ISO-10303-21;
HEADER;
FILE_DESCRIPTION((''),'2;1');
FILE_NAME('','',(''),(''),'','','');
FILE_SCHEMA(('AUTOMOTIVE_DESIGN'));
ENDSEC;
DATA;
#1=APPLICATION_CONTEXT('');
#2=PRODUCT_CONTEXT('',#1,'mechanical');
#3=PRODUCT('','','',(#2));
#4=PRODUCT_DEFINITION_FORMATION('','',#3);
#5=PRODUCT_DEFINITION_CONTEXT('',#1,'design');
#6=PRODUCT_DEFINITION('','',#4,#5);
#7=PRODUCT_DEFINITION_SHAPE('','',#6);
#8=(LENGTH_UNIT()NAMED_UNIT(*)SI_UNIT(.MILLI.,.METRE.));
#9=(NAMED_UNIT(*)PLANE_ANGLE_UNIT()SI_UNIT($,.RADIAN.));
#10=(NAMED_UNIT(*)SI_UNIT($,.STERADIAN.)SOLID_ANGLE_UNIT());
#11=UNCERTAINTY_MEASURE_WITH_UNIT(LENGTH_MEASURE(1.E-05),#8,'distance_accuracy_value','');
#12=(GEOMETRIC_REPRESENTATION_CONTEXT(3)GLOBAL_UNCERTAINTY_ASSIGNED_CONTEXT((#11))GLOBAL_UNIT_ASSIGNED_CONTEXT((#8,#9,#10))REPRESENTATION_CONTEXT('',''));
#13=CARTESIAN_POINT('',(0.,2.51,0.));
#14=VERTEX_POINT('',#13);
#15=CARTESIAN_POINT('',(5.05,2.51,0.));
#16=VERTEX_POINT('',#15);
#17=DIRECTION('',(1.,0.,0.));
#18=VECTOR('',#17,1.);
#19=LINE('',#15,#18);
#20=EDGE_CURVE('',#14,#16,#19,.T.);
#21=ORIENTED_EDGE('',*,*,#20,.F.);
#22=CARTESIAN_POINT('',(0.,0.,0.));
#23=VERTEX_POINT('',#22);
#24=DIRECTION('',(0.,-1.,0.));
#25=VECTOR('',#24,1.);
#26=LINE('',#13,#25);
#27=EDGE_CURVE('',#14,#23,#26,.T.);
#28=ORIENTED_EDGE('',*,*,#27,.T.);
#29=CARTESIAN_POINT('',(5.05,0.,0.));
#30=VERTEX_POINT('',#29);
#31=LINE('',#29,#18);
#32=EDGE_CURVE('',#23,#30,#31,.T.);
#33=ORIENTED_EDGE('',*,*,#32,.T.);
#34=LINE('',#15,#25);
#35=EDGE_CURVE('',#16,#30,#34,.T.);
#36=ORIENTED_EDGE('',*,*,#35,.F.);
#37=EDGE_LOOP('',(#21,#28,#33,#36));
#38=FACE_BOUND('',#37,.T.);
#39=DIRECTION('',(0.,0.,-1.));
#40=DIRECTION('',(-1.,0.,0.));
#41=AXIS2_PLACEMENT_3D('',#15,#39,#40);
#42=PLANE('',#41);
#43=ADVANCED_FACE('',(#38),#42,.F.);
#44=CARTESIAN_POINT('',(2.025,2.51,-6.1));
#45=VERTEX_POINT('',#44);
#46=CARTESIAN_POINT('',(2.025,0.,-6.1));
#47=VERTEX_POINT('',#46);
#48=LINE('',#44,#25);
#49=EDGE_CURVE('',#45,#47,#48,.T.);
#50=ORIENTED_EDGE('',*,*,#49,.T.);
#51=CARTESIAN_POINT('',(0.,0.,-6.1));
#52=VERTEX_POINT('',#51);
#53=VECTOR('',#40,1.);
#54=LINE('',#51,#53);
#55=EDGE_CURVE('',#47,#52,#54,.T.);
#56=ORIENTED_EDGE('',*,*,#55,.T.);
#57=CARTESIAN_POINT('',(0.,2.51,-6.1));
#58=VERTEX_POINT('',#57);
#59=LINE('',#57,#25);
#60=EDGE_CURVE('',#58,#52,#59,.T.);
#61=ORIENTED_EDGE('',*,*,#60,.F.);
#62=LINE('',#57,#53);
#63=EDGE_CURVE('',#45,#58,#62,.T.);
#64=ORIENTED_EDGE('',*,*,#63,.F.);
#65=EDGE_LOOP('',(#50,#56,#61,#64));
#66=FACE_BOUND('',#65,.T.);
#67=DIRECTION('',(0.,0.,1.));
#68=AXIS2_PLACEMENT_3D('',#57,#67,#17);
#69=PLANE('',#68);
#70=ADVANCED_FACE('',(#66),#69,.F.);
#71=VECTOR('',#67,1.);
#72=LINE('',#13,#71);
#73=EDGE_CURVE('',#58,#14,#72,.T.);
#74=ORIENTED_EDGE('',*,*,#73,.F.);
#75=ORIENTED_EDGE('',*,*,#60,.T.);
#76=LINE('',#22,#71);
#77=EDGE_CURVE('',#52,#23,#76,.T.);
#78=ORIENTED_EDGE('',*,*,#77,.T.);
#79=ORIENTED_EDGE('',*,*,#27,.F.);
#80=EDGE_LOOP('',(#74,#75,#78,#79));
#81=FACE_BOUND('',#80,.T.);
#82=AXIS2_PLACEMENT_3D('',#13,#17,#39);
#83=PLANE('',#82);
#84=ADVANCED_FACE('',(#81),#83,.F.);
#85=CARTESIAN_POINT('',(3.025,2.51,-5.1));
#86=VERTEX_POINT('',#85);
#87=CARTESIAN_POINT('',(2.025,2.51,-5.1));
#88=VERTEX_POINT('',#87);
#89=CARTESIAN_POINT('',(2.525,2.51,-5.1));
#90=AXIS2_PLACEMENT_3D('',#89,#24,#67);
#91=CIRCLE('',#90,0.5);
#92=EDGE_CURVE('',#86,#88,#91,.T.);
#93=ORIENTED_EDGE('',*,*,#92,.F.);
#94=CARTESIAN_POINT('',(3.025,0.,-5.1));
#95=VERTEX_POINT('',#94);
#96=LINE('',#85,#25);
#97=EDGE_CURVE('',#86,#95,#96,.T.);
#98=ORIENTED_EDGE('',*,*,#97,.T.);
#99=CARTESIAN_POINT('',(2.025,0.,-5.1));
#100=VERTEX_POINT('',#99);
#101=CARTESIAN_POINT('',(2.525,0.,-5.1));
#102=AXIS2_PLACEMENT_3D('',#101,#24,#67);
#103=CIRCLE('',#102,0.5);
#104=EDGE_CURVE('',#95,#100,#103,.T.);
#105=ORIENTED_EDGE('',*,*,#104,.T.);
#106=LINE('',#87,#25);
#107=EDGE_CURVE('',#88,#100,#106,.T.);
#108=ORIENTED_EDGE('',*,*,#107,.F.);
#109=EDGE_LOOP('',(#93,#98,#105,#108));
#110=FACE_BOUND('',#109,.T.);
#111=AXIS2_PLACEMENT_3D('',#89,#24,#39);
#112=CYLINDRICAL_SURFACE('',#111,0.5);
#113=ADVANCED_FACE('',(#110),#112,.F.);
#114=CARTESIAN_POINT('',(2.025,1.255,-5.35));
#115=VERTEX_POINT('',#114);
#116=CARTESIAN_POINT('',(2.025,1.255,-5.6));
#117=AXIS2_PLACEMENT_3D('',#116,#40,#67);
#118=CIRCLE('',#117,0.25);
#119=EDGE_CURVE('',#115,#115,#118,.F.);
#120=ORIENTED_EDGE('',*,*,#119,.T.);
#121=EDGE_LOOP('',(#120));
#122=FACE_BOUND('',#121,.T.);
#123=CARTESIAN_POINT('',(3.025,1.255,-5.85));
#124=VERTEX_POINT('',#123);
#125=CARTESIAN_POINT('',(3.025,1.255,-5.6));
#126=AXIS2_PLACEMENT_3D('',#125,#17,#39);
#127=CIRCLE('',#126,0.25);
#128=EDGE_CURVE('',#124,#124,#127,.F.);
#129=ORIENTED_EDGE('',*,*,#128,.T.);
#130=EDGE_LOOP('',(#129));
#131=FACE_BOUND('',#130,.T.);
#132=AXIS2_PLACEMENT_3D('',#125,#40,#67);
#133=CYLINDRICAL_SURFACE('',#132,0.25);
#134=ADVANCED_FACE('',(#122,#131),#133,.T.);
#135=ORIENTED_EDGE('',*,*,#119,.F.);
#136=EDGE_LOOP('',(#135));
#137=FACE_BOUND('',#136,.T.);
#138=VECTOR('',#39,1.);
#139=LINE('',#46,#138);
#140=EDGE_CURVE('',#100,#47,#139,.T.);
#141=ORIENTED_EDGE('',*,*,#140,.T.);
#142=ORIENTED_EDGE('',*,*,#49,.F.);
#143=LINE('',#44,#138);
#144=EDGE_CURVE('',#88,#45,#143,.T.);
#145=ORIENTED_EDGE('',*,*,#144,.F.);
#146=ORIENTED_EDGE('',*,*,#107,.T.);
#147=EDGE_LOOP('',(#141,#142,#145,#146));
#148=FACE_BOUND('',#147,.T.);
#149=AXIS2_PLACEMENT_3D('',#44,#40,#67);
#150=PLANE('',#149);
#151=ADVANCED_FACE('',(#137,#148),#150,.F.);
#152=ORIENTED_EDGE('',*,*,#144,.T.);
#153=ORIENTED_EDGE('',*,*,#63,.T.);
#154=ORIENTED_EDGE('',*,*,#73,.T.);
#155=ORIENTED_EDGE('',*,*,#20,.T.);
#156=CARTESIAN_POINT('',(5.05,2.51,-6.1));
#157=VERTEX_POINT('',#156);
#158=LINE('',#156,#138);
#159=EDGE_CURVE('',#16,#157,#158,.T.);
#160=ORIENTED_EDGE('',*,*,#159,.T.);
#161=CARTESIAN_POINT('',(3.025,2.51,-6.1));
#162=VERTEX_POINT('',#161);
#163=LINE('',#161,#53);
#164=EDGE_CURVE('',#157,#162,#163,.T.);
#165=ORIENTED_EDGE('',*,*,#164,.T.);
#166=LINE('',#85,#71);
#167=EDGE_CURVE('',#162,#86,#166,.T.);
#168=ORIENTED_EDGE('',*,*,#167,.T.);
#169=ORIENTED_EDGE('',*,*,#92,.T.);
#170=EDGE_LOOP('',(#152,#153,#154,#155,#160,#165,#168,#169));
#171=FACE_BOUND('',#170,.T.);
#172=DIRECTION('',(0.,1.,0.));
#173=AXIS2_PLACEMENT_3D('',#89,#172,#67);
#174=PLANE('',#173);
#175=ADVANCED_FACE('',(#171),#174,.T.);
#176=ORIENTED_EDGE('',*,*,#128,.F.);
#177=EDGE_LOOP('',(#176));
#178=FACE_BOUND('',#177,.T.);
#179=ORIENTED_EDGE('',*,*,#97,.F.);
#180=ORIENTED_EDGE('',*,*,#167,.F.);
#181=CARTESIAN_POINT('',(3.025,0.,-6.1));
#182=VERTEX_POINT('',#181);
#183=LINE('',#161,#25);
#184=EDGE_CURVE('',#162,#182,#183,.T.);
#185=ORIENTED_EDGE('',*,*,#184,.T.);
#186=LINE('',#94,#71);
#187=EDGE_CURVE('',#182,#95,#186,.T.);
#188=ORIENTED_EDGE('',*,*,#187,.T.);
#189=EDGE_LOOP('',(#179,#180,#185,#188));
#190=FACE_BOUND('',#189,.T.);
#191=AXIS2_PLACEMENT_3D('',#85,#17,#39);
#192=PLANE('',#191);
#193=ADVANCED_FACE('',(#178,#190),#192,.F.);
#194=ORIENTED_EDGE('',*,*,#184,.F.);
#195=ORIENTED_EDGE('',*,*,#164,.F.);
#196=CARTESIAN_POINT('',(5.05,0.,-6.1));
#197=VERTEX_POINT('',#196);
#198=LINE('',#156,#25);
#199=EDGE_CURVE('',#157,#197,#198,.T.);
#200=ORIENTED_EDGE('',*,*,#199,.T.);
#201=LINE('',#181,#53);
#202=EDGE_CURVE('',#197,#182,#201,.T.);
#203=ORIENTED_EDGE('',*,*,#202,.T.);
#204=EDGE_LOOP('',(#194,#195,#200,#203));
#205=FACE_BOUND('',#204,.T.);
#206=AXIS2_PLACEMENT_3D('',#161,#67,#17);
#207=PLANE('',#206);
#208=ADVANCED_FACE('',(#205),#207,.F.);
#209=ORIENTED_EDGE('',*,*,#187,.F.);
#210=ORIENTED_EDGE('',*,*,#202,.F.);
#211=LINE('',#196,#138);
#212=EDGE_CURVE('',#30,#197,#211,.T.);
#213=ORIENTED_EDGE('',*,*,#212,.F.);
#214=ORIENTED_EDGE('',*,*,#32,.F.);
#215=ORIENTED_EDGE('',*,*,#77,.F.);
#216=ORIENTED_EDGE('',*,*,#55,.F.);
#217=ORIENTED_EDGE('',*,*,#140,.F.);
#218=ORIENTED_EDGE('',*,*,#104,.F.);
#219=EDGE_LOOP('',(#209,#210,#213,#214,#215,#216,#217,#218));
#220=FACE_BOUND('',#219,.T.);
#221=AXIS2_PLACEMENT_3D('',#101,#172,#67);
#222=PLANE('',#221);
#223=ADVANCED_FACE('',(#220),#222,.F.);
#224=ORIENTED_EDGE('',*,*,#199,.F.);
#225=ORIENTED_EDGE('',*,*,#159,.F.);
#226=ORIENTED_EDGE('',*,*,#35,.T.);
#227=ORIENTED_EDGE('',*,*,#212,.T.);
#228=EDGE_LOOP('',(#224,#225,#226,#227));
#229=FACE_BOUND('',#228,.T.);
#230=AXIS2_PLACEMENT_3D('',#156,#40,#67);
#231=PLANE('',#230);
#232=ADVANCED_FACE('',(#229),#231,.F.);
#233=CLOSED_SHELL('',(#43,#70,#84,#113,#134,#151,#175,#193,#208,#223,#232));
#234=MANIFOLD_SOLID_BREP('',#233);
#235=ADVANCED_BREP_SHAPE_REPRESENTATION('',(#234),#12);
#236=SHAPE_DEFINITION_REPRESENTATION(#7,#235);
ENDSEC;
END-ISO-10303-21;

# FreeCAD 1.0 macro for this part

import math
import FreeCAD as App
import Part
import Sketcher

V = App.Vector

doc = App.newDocument("Part")
params = doc.addObject("Spreadsheet::Sheet", "Params")
for row, (alias, value) in enumerate([
    ("sketch1_radius", "0.5 mm"),
    ("sketch1_height", "1 mm"),
    ("sketch1_height2", "6.1 mm"),
    ("sketch1_width", "5.05 mm"),
    ("pad1_length", "2.51 mm"),
    ("sketch2_diameter", "0.5 mm"),
    ("pad2_length", "1 mm"),
], start=1):
    params.set(f"A{row}", alias)
    params.set(f"B{row}", "=" + value)
    params.setAlias(f"B{row}", alias)

body = doc.addObject("PartDesign::Body", "Body")

# Sketch on XZ plane
sketch1 = doc.addObject("Sketcher::SketchObject", "Sketch")
body.addObject(sketch1)
sketch1.AttachmentSupport = (doc.XZ_Plane, [""])
sketch1.MapMode = "FlatFace"
sketch1.addGeometry([
    Part.LineSegment(V(3, -6.1, 0), V(3, -5.1, 0)),  # 0
    Part.ArcOfCircle(Part.Circle(V(2.5, -5.1, 0), V(0, 0, 1), 0.5), math.radians(0), math.radians(180)),  # 1
    Part.LineSegment(V(2, -5.1, 0), V(2, -6.1, 0)),  # 2
    Part.LineSegment(V(2, -6.1, 0), V(0, -6.1, 0)),  # 3
    Part.LineSegment(V(0, -6.1, 0), V(0, 0, 0)),  # 4
    Part.LineSegment(V(0, 0, 0), V(5, 0, 0)),  # 5
    Part.LineSegment(V(5, 0, 0), V(5, -6.1, 0)),  # 6
    Part.LineSegment(V(5, -6.1, 0), V(3, -6.1, 0)),  # 7
], False)
sketch1.addConstraint([
    Sketcher.Constraint("Tangent", 0, 2, 1, 1),
    Sketcher.Constraint("Tangent", 1, 2, 2, 1),
    Sketcher.Constraint("Coincident", 2, 2, 3, 1),
    Sketcher.Constraint("Coincident", 3, 2, 4, 1),
    Sketcher.Constraint("Coincident", 4, 2, 5, 1),
    Sketcher.Constraint("Coincident", 5, 2, 6, 1),
    Sketcher.Constraint("Coincident", 6, 2, 7, 1),
    Sketcher.Constraint("Coincident", 7, 2, 0, 1),
    Sketcher.Constraint("Vertical", 0),
    Sketcher.Constraint("Vertical", 2),
    Sketcher.Constraint("Horizontal", 3),
    Sketcher.Constraint("Vertical", 4),
    Sketcher.Constraint("Horizontal", 5),
    Sketcher.Constraint("Vertical", 6),
    Sketcher.Constraint("Horizontal", 7),
    Sketcher.Constraint("Coincident", 4, 2, -1, 1),
    Sketcher.Constraint("Horizontal", 3, 2, 6, 2),
    Sketcher.Constraint("Equal", 3, 7),
    Sketcher.Constraint("Radius", 1, 0.5),
    Sketcher.Constraint("DistanceY", 0, 1, 0, 2, 1.0),
    Sketcher.Constraint("DistanceY", 4, 1, 4, 2, 6.1),
    Sketcher.Constraint("DistanceX", 5, 1, 5, 2, 5.05),
])
sketch1.setExpression("Constraints[18]", "Params.sketch1_radius")
sketch1.setExpression("Constraints[19]", "Params.sketch1_height")
sketch1.setExpression("Constraints[20]", "Params.sketch1_height2")
sketch1.setExpression("Constraints[21]", "Params.sketch1_width")
pad1 = doc.addObject("PartDesign::Pad", "Pad")
body.addObject(pad1)
pad1.Profile = sketch1
pad1.setExpression("Length", "Params.pad1_length")
pad1.Reversed = True

# Sketch on YZ plane
sketch2 = doc.addObject("Sketcher::SketchObject", "Sketch001")
body.addObject(sketch2)
sketch2.AttachmentSupport = (doc.YZ_Plane, [""])
sketch2.MapMode = "FlatFace"
sketch2.AttachmentOffset = App.Placement(V(0, 0, 2.025), App.Rotation())
sketch2.addGeometry(Part.Circle(V(1.25, -5.6, 0), V(0, 0, 1), 0.25), False)
sketch2.addConstraint([
    Sketcher.Constraint("Diameter", 0, 0.5),
    Sketcher.Constraint("DistanceY", 0, 3, -1, 1, 5.6),
    Sketcher.Constraint("DistanceX", -1, 1, 0, 3, 1.255),
])
sketch2.setExpression("Constraints[0]", "Params.sketch2_diameter")
pad2 = doc.addObject("PartDesign::Pad", "Pad001")
body.addObject(pad2)
pad2.Profile = sketch2
pad2.setExpression("Length", "Params.pad2_length")

doc.recompute()
